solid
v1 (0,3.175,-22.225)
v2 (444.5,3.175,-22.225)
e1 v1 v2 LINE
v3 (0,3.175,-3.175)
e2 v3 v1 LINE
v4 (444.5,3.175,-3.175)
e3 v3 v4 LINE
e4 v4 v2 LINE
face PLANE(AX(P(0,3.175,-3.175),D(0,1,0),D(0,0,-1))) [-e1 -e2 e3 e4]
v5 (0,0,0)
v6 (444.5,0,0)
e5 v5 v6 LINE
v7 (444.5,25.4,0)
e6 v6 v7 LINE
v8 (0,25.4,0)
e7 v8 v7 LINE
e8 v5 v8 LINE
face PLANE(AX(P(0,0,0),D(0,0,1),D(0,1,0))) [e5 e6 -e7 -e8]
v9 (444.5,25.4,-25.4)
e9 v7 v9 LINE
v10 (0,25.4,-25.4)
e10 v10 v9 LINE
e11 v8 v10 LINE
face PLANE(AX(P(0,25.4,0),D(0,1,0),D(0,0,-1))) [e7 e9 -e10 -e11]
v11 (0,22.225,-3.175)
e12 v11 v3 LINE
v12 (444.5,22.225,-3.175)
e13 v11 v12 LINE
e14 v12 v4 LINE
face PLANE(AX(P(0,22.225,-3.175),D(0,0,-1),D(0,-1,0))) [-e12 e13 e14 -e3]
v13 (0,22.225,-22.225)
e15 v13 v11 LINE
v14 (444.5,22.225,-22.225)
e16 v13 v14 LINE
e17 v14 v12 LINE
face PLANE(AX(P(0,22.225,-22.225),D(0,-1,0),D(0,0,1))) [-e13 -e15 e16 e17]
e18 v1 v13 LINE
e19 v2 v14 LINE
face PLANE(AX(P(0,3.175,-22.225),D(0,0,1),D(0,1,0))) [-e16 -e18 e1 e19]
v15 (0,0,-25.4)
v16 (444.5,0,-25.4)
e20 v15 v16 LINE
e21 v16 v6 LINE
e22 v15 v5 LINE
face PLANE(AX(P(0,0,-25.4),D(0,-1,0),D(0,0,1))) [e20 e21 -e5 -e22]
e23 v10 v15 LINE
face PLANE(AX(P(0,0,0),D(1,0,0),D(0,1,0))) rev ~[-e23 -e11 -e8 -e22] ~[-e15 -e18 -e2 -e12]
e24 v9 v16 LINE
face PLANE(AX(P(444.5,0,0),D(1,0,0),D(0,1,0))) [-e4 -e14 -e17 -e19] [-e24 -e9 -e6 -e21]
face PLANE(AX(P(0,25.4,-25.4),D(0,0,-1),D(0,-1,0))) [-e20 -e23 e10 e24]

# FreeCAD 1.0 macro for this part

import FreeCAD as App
import Part
import Sketcher
from FreeCAD import Vector
Q = App.Units.Quantity

doc = App.newDocument("Part")
body = doc.addObject("PartDesign::Body", "Body")

sketch1 = body.newObject("Sketcher::SketchObject", "Sketch")
sketch1.AttachmentSupport = (doc.getObject("YZ_Plane"), [""])
sketch1.MapMode = "FlatFace"
sketch1.addGeometry(Part.LineSegment(Vector(25, 0, 0), Vector(0, 0, 0)), False)
sketch1.addGeometry(Part.LineSegment(Vector(0, 0, 0), Vector(0, -25, 0)), False)
sketch1.addGeometry(Part.LineSegment(Vector(0, -25, 0), Vector(25, -25, 0)), False)
sketch1.addGeometry(Part.LineSegment(Vector(25, -25, 0), Vector(25, 0, 0)), False)
sketch1.addGeometry(Part.LineSegment(Vector(22, -3, 0), Vector(22, -22, 0)), False)
sketch1.addGeometry(Part.LineSegment(Vector(22, -22, 0), Vector(3, -22, 0)), False)
sketch1.addGeometry(Part.LineSegment(Vector(3, -22, 0), Vector(3, -3, 0)), False)
sketch1.addGeometry(Part.LineSegment(Vector(3, -3, 0), Vector(22, -3, 0)), False)
sketch1.addConstraint(Sketcher.Constraint("Coincident", 0, 2, 1, 1))
sketch1.addConstraint(Sketcher.Constraint("Coincident", 1, 2, 2, 1))
sketch1.addConstraint(Sketcher.Constraint("Coincident", 2, 2, 3, 1))
sketch1.addConstraint(Sketcher.Constraint("Coincident", 3, 2, 0, 1))
sketch1.addConstraint(Sketcher.Constraint("Coincident", 4, 2, 5, 1))
sketch1.addConstraint(Sketcher.Constraint("Coincident", 5, 2, 6, 1))
sketch1.addConstraint(Sketcher.Constraint("Coincident", 6, 2, 7, 1))
sketch1.addConstraint(Sketcher.Constraint("Coincident", 7, 2, 4, 1))
sketch1.addConstraint(Sketcher.Constraint("Horizontal", 0))
sketch1.addConstraint(Sketcher.Constraint("Vertical", 1))
sketch1.addConstraint(Sketcher.Constraint("Horizontal", 2))
sketch1.addConstraint(Sketcher.Constraint("Vertical", 3))
sketch1.addConstraint(Sketcher.Constraint("Vertical", 4))
sketch1.addConstraint(Sketcher.Constraint("Horizontal", 5))
sketch1.addConstraint(Sketcher.Constraint("Vertical", 6))
sketch1.addConstraint(Sketcher.Constraint("Horizontal", 7))
sketch1.addConstraint(Sketcher.Constraint("Coincident", 0, 2, -1, 1))
sketch1.addConstraint(Sketcher.Constraint("Equal", 2, 1))
sketch1.addConstraint(Sketcher.Constraint("Equal", 7, 4))
sketch1.addConstraint(Sketcher.Constraint("DistanceX", 0, 2, 0, 1, Q("1 in")))
sketch1.addConstraint(Sketcher.Constraint("DistanceX", -1, 1, 5, 2, Q("0.125 in")))
sketch1.addConstraint(Sketcher.Constraint("DistanceY", 6, 2, -1, 1, Q("0.125 in")))
sketch1.addConstraint(Sketcher.Constraint("DistanceX", 4, 2, 2, 2, Q("0.125 in")))
pad1 = body.newObject("PartDesign::Pad", "Pad")
pad1.Profile = sketch1
pad1.Length = Q("17.5 in")

doc.recompute()
